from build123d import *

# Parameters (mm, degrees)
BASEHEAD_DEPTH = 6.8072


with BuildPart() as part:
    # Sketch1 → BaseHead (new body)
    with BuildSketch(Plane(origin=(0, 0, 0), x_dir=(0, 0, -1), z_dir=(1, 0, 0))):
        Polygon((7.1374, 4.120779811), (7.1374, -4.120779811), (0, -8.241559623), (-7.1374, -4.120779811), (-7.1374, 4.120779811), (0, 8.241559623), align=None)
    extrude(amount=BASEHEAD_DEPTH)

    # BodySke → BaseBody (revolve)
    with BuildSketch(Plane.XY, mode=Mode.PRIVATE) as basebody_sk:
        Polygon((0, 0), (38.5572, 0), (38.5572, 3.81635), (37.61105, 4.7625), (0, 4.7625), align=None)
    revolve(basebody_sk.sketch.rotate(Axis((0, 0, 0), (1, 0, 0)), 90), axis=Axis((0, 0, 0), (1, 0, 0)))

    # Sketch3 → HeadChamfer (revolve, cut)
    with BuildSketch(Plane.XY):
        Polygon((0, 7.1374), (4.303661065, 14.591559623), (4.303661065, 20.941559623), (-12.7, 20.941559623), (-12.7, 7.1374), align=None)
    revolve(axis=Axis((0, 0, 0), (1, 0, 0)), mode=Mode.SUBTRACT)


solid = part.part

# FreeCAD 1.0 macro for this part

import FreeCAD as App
import Part
import Sketcher
Q = App.Units.Quantity


def add_polygon(sketch, points):
    """Adds a closed chain of lines whose ends are joined by coincident constraints."""
    first, n = sketch.GeometryCount, len(points)
    for a, b in zip(points, points[1:] + points[:1]):
        sketch.addGeometry(Part.LineSegment(App.Vector(*a, 0), App.Vector(*b, 0)), False)
    for i in range(n):
        sketch.addConstraint(Sketcher.Constraint("Coincident", first + i, 2, first + (i + 1) % n, 1))

doc = App.newDocument("Part")
body = doc.addObject("PartDesign::Body", "Body")

sketch1 = body.newObject("Sketcher::SketchObject", "Sketch")
sketch1.AttachmentSupport = (doc.getObject("YZ_Plane"), [""])
sketch1.MapMode = "FlatFace"
add_polygon(sketch1, [(-4, -7), (4, -7), (8, 0), (4, 7), (-4, 7), (-8, 0)])
sketch1.addConstraint([
    Sketcher.Constraint("Horizontal", 0),
    Sketcher.Constraint("Horizontal", 3),
    Sketcher.Constraint("Symmetric", 0, 2, 3, 2, -1, 1),
    Sketcher.Constraint("Symmetric", 1, 2, 4, 2, -1, 1),
    Sketcher.Constraint("PointOnObject", 1, 2, -1),
    Sketcher.Constraint("Parallel", 2, 5),
    Sketcher.Constraint("Vertical", 0, 2, 2, 2),
    Sketcher.Constraint("Angle", 1, Q("60 deg")),
    Sketcher.Constraint("DistanceY", 0, 2, -1, 1, Q("0.281 in")),
    Sketcher.Constraint("DistanceX", 0, 1, 0, 2, 8.24156),
])
pad1 = body.newObject("PartDesign::Pad", "Pad")
pad1.Profile = sketch1
pad1.Length = Q("0.268 in")

sketch2 = body.newObject("Sketcher::SketchObject", "Sketch001")
sketch2.AttachmentSupport = (doc.getObject("XY_Plane"), [""])
sketch2.MapMode = "FlatFace"
add_polygon(sketch2, [(0, 0), (38.6, 0), (38.6, 3.8), (37.6, 4.8), (0, 4.8)])
sketch2.addConstraint([
    Sketcher.Constraint("Horizontal", 0),
    Sketcher.Constraint("Vertical", 1),
    Sketcher.Constraint("Horizontal", 3),
    Sketcher.Constraint("Vertical", 4),
    Sketcher.Constraint("Coincident", 4, 2, -1, 1),
    Sketcher.Constraint("Angle", 2, Q("135 deg")),
    Sketcher.Constraint("DistanceX", 0, 1, 0, 2, Q("1.518 in")),
    Sketcher.Constraint("DistanceY", 4, 2, 4, 1, Q("0.1875 in")),
    Sketcher.Constraint("DistanceX", 3, 2, 3, 1, 37.61105),
])
revolution = body.newObject("PartDesign::Revolution", "Revolution")
revolution.Profile = sketch2
revolution.ReferenceAxis = (sketch2, ["H_Axis"])
revolution.Angle = 360

sketch3 = body.newObject("Sketcher::SketchObject", "Sketch002")
sketch3.AttachmentSupport = (doc.getObject("XY_Plane"), [""])
sketch3.MapMode = "FlatFace"
add_polygon(sketch3, [(0, 7), (4, 15), (4, 21), (-13, 21), (-13, 7)])
sketch3.addConstraint([
    Sketcher.Constraint("Vertical", 1),
    Sketcher.Constraint("Horizontal", 2),
    Sketcher.Constraint("Vertical", 3),
    Sketcher.Constraint("Horizontal", 4),
    Sketcher.Constraint("PointOnObject", 4, 2, -2),
    Sketcher.Constraint("DistanceX", 4, 1, 4, 2, Q("0.5 in")),
    Sketcher.Constraint("Angle", 0, Q("60 deg")),
    Sketcher.Constraint("DistanceY", 1, 1, 1, 2, Q("0.25 in")),
    Sketcher.Constraint("DistanceY", -1, 1, 3, 2, Q("0.281 in")),
    Sketcher.Constraint("DistanceX", 2, 2, 2, 1, 17.003661),
])
groove = body.newObject("PartDesign::Groove", "Groove")
groove.Profile = sketch3
groove.ReferenceAxis = (sketch3, ["H_Axis"])
groove.Angle = 360

doc.recompute()
